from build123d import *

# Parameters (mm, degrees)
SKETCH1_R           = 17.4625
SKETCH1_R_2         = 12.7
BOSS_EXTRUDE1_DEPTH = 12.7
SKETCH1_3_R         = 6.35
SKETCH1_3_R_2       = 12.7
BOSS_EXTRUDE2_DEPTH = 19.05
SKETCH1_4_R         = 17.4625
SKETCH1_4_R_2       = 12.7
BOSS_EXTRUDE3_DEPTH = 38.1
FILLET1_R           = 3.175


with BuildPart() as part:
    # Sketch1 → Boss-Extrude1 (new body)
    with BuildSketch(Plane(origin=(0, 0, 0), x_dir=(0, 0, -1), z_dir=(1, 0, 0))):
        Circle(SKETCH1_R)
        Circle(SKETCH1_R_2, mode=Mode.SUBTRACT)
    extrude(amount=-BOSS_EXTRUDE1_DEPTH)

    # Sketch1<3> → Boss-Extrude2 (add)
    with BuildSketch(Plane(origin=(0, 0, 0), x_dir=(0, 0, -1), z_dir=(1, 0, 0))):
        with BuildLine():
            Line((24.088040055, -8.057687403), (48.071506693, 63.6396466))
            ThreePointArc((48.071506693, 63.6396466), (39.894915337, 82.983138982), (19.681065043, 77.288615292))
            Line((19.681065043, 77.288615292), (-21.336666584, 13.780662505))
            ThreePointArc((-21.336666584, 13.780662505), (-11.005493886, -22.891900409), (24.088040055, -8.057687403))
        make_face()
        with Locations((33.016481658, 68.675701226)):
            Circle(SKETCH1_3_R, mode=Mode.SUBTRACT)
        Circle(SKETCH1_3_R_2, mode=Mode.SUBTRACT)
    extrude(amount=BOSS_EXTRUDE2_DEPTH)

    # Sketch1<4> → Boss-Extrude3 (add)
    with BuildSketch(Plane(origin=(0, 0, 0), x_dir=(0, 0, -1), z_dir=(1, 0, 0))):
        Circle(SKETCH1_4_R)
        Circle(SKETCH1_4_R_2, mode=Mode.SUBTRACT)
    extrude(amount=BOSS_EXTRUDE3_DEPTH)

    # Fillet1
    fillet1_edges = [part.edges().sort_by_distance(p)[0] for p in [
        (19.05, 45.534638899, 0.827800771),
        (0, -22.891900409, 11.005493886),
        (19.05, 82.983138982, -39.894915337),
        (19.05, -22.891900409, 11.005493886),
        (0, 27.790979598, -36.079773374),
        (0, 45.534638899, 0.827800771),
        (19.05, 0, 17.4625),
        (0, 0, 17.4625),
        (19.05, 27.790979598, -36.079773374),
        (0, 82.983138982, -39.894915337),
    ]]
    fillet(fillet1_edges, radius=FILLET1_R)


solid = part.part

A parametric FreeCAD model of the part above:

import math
import FreeCAD as App
import Part
import Sketcher
Q = App.Units.Quantity


def edges_at(feature, points):
    """Names of the edges that pass closest to the given points."""
    edges = feature.Shape.Edges
    near = lambda p: min(range(len(edges)), key=lambda i: edges[i].distToShape(Part.Vertex(*p))[0])
    return sorted({f"Edge{near(p) + 1}" for p in points})

doc = App.newDocument("Part")
body = doc.addObject("PartDesign::Body", "Body")

# Sketch on YZ plane
sketch1 = doc.addObject("Sketcher::SketchObject", "Sketch")
body.addObject(sketch1)
sketch1.AttachmentSupport = (doc.YZ_Plane, [""])
sketch1.MapMode = "FlatFace"
sketch1.addGeometry([
    Part.Circle(App.Vector(0, 0, 0), App.Vector(0, 0, 1), 17),
    Part.Circle(App.Vector(0, 0, 0), App.Vector(0, 0, 1), 13),
], False)
sketch1.addConstraint([
    Sketcher.Constraint("Coincident", 0, 3, -1, 1),
    Sketcher.Constraint("Coincident", 1, 3, -1, 1),
    Sketcher.Constraint("Diameter", 1, Q("1 in")),
    Sketcher.Constraint("Diameter", 0, Q("1.375 in")),
])
pad1 = doc.addObject("PartDesign::Pad", "Pad")
body.addObject(pad1)
pad1.Profile = sketch1
pad1.Length = Q("0.5 in")
pad1.Reversed = True

# Sketch on YZ plane
sketch2 = doc.addObject("Sketcher::SketchObject", "Sketch001")
body.addObject(sketch2)
sketch2.AttachmentSupport = (doc.YZ_Plane, [""])
sketch2.MapMode = "FlatFace"
sketch2.addGeometry([
    Part.LineSegment(App.Vector(-8, -24, 0), App.Vector(64, -48, 0)),  # 0
    Part.ArcOfCircle(Part.Circle(App.Vector(69, -33, 0), App.Vector(0, 0, 1), 16), math.radians(-108), math.radians(57)),  # 1
    Part.LineSegment(App.Vector(77, -20, 0), App.Vector(14, 21, 0)),  # 2
    Part.ArcOfCircle(Part.Circle(App.Vector(0, 0, 0), App.Vector(0, 0, 1), 25), math.radians(57), math.radians(252)),  # 3
    Part.Circle(App.Vector(0, 0, 0), App.Vector(0, 0, 1), 13),  # 4
    Part.Circle(App.Vector(69, -33, 0), App.Vector(0, 0, 1), 6),  # 5
], False)
sketch2.addConstraint([
    Sketcher.Constraint("Tangent", 0, 2, 1, 1),
    Sketcher.Constraint("Tangent", 1, 2, 2, 1),
    Sketcher.Constraint("Tangent", 2, 2, 3, 1),
    Sketcher.Constraint("Tangent", 3, 2, 0, 1),
    Sketcher.Constraint("Coincident", 3, 3, -1, 1),
    Sketcher.Constraint("Coincident", 4, 3, -1, 1),
    Sketcher.Constraint("Coincident", 5, 3, 1, 3),
    Sketcher.Constraint("Diameter", 4, Q("1 in")),
    Sketcher.Constraint("Radius", 3, Q("1 in")),
    Sketcher.Constraint("Diameter", 5, Q("0.5 in")),
    Sketcher.Constraint("Radius", 1, Q("0.625 in")),
    Sketcher.Constraint("DistanceX", -1, 1, 1, 3, Q("68.675701 mm")),
    Sketcher.Constraint("DistanceY", 1, 3, -1, 1, Q("33.016482 mm")),
])
pad2 = doc.addObject("PartDesign::Pad", "Pad001")
body.addObject(pad2)
pad2.Profile = sketch2
pad2.Length = Q("0.75 in")

# Sketch on YZ plane
sketch3 = doc.addObject("Sketcher::SketchObject", "Sketch002")
body.addObject(sketch3)
sketch3.AttachmentSupport = (doc.YZ_Plane, [""])
sketch3.MapMode = "FlatFace"
sketch3.addGeometry([
    Part.Circle(App.Vector(0, 0, 0), App.Vector(0, 0, 1), 17),
    Part.Circle(App.Vector(0, 0, 0), App.Vector(0, 0, 1), 13),
], False)
sketch3.addConstraint([
    Sketcher.Constraint("Coincident", 0, 3, -1, 1),
    Sketcher.Constraint("Coincident", 1, 3, -1, 1),
    Sketcher.Constraint("Diameter", 1, Q("1 in")),
    Sketcher.Constraint("Diameter", 0, Q("1.375 in")),
])
pad3 = doc.addObject("PartDesign::Pad", "Pad002")
body.addObject(pad3)
pad3.Profile = sketch3
pad3.Length = Q("1.5 in")
doc.recompute()

fillet = doc.addObject("PartDesign::Fillet", "Fillet")
body.addObject(fillet)
fillet.Base = (pad3, edges_at(pad3, [
    (19.05, 45.535, 0.828),
    (0, -22.892, 11.005),
    (19.05, 82.983, -39.895),
    (19.05, -22.892, 11.005),
    (0, 27.791, -36.08),
    (0, 45.535, 0.828),
    (19.05, 0, 17.462),
    (0, 0, 17.462),
    (19.05, 27.791, -36.08),
    (0, 82.983, -39.895),
]))
fillet.Radius = Q("0.125 in")

doc.recompute()
